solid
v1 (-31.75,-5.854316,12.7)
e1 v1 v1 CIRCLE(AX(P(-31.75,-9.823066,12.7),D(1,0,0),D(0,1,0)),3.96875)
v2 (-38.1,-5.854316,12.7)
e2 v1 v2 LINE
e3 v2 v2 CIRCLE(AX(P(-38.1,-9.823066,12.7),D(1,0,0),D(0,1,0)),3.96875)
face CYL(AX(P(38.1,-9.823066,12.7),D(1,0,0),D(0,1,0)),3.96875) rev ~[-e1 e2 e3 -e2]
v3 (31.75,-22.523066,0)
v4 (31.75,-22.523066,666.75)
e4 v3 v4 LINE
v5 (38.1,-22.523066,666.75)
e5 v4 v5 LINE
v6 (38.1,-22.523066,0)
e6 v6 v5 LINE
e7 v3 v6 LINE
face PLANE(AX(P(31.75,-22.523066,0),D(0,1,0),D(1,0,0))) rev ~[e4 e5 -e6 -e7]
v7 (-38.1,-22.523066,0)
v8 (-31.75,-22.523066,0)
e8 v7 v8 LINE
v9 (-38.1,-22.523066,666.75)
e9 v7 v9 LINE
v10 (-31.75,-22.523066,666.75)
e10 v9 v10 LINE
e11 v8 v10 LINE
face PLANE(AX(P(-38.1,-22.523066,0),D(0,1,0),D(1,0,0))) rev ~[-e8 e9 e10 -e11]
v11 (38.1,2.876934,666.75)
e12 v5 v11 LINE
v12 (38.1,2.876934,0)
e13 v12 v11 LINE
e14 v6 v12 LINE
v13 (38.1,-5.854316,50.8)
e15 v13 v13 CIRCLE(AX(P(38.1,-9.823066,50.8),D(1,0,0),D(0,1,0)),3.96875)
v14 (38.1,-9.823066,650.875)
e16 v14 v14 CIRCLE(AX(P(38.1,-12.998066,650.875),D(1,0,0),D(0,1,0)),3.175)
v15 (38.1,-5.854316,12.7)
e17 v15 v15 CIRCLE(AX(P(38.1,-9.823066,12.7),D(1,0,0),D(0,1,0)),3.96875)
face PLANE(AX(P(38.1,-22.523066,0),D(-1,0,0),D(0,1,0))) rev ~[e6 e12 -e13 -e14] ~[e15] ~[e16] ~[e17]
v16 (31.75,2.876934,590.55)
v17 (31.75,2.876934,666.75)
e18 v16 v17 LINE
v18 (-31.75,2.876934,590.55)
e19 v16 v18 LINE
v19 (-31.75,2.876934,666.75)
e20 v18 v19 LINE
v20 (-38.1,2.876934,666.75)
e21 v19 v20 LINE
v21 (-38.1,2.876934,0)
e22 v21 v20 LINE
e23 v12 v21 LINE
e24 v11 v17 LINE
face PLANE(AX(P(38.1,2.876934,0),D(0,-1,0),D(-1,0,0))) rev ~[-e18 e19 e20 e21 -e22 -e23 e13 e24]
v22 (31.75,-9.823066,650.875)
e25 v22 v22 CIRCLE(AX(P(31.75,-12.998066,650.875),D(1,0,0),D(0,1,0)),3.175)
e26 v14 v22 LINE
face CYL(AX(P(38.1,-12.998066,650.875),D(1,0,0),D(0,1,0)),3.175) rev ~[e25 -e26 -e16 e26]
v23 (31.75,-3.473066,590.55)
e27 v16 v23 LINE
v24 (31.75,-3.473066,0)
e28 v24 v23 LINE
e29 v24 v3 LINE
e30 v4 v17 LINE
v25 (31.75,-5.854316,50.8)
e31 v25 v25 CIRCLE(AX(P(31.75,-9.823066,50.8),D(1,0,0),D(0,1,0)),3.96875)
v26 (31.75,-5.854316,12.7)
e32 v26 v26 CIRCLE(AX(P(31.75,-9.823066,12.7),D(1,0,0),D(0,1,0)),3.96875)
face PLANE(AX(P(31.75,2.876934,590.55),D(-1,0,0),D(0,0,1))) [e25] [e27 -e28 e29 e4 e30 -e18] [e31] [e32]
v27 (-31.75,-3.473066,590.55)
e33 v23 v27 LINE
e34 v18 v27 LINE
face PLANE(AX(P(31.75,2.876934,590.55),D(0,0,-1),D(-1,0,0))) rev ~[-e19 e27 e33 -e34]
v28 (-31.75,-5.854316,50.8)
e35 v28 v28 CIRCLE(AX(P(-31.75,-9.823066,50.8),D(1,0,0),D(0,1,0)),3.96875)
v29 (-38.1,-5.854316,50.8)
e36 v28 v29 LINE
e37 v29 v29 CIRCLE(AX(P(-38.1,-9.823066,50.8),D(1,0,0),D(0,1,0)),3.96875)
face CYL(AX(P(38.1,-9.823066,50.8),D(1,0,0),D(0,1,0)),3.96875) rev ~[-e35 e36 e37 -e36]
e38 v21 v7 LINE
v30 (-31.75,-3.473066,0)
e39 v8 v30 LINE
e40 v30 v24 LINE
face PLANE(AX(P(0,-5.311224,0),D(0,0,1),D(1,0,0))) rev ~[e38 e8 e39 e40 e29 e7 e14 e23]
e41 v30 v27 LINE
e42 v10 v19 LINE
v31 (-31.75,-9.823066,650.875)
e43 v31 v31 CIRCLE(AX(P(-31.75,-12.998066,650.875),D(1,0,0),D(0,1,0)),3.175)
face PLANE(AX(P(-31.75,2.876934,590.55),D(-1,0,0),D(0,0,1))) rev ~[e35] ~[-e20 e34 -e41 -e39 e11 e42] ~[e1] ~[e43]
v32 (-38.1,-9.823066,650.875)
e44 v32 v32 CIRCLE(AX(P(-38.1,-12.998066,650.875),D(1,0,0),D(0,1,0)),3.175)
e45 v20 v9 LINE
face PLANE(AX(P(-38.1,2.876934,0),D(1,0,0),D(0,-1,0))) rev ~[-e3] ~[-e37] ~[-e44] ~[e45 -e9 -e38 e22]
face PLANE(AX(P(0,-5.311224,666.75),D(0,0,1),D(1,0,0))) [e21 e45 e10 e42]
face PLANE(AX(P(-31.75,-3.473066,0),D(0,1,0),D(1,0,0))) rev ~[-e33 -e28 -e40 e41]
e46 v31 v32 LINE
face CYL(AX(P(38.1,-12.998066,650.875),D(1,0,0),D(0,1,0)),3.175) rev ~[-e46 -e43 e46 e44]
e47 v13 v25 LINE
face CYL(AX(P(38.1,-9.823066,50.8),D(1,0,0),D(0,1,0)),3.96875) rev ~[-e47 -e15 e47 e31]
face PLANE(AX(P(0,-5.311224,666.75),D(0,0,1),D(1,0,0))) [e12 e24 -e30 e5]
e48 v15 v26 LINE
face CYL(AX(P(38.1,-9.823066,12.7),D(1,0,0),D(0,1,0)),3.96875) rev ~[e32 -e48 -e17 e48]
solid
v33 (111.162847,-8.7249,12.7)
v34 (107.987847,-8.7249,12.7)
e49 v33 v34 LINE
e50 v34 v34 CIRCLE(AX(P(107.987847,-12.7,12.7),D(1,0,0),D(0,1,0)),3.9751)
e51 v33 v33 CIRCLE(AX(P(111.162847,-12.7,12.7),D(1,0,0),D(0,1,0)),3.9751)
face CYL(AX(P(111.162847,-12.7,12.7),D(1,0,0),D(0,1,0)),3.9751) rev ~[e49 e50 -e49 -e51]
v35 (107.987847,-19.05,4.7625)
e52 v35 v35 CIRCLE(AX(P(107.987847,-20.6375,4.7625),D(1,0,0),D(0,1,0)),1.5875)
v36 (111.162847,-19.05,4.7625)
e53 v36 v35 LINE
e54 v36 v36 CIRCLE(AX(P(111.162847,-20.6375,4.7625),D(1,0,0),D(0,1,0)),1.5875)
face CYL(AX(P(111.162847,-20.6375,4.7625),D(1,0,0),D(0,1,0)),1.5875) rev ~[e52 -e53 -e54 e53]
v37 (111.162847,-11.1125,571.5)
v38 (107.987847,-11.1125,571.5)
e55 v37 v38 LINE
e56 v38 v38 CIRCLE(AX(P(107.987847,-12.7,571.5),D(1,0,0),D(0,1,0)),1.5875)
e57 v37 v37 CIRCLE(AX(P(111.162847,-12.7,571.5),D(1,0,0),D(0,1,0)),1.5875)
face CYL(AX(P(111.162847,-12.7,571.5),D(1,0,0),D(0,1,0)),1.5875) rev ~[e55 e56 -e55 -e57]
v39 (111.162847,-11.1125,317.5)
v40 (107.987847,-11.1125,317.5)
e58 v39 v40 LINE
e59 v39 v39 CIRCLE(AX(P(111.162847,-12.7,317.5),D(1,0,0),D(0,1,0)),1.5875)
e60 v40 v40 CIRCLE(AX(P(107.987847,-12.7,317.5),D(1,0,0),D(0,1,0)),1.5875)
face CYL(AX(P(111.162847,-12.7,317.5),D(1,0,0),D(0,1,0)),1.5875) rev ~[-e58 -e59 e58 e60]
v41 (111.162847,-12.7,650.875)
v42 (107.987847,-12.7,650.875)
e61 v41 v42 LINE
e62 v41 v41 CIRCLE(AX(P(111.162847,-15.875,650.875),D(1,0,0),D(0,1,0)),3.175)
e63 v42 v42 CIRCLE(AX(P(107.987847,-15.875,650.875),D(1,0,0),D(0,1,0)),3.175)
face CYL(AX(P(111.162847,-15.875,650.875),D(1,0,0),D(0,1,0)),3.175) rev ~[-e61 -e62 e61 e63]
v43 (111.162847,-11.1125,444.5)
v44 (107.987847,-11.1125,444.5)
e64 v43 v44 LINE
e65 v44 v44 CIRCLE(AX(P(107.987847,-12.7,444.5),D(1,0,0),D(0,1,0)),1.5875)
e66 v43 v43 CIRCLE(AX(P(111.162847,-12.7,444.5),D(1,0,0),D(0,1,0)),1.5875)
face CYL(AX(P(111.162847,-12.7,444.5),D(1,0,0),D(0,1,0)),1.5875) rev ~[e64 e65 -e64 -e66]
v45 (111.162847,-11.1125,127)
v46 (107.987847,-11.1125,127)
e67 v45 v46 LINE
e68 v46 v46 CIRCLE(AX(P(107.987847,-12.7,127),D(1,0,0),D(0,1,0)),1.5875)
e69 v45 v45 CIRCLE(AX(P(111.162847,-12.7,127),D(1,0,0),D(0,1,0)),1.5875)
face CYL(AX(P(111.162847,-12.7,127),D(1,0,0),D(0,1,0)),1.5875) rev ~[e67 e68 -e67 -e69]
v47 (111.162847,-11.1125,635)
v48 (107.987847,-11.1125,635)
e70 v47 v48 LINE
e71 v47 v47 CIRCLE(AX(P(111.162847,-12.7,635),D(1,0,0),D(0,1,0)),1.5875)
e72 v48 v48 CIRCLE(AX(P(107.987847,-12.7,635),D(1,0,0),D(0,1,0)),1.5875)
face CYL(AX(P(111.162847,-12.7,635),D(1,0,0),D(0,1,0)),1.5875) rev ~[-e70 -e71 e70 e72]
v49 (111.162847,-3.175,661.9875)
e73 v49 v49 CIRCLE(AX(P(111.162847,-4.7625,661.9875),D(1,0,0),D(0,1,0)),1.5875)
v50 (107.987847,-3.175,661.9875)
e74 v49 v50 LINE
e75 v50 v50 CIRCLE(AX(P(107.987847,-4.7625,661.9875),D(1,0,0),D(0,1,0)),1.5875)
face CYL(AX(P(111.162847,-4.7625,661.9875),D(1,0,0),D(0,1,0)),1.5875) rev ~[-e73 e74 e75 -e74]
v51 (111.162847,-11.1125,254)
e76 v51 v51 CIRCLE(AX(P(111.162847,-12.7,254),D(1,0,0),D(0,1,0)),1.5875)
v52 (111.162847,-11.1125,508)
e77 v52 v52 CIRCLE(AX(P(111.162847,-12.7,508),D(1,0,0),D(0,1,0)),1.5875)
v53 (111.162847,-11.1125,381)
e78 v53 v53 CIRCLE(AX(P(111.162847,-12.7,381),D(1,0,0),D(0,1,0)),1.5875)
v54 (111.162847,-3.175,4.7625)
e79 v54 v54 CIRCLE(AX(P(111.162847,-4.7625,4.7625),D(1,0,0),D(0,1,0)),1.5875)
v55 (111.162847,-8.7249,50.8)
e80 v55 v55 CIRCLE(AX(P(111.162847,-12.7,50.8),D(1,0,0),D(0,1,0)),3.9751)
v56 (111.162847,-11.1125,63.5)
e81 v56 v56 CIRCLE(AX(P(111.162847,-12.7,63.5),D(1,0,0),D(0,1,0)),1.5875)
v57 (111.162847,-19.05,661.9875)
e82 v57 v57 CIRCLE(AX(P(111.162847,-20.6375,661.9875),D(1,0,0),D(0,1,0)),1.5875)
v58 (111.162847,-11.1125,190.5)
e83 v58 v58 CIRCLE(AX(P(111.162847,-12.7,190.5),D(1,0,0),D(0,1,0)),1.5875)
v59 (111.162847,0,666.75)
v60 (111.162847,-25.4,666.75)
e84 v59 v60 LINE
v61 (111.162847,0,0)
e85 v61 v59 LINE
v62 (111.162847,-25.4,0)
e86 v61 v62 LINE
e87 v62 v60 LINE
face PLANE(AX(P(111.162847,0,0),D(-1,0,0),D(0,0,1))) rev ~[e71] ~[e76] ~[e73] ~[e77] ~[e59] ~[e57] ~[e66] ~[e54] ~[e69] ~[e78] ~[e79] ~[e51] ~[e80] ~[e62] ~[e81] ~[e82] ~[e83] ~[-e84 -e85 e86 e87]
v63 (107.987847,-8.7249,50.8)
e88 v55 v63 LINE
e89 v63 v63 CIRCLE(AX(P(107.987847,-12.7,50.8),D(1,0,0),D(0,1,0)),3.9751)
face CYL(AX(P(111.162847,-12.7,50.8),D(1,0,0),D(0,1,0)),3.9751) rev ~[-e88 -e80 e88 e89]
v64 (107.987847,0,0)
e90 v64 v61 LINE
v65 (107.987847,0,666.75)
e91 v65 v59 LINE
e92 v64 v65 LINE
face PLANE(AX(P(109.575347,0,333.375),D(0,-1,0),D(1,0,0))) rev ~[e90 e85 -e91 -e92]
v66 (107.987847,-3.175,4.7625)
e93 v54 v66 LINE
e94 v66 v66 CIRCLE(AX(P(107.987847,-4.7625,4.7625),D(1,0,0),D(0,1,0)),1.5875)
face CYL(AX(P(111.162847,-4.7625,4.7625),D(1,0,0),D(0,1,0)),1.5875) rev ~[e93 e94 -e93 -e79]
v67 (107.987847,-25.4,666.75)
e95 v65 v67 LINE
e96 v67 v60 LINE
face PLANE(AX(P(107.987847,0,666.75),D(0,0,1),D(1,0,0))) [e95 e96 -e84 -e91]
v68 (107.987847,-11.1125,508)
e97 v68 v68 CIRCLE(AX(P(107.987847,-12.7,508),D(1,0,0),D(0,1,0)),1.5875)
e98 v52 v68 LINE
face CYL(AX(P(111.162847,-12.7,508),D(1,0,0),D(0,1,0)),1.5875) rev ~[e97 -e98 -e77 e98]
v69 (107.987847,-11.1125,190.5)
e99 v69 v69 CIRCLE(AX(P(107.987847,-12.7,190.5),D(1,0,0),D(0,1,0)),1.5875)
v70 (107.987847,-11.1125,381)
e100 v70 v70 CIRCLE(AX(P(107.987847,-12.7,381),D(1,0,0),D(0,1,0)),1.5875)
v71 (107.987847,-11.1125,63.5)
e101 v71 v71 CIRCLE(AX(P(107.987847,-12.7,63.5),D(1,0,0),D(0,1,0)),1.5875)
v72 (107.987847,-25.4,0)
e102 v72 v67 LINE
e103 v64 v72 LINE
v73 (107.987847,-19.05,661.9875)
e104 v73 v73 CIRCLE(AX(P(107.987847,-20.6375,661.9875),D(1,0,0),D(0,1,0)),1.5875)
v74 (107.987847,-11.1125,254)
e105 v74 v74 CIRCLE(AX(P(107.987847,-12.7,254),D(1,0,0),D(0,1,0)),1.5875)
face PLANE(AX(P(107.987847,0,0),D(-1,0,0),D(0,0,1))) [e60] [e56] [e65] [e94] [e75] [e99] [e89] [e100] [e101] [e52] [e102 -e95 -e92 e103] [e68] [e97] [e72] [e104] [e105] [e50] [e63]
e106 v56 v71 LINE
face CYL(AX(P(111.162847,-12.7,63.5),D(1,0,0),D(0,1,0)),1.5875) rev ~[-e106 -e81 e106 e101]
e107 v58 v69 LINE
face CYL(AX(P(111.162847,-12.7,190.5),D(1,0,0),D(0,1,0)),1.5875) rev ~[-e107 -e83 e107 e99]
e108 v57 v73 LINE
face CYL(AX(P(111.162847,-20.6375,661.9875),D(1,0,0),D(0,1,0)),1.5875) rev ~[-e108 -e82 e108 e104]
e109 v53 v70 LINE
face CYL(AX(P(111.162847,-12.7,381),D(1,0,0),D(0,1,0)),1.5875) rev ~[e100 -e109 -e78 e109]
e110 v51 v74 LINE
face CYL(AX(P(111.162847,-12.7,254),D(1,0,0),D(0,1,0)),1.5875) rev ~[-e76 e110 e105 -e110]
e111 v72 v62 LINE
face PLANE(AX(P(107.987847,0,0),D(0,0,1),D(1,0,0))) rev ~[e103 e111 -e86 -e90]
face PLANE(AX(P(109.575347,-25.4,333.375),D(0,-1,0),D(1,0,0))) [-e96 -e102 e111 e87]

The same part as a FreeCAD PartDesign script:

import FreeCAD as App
import Part
import Sketcher
Q = App.Units.Quantity

doc = App.newDocument("Part")
body = doc.addObject("PartDesign::Body", "Body")

# Sketch on XY plane
sketch1 = body.newObject("Sketcher::SketchObject", "Sketch")
sketch1.AttachmentSupport = (doc.getObject("XY_Plane"), [""])
sketch1.MapMode = "FlatFace"
sketch1.addGeometry([
    Part.LineSegment(App.Vector(-38, 3, 0), App.Vector(-38, -23, 0)),  # 0
    Part.LineSegment(App.Vector(-38, -23, 0), App.Vector(-32, -23, 0)),  # 1
    Part.LineSegment(App.Vector(-32, -23, 0), App.Vector(-32, -3, 0)),  # 2
    Part.LineSegment(App.Vector(-32, -3, 0), App.Vector(32, -3, 0)),  # 3
    Part.LineSegment(App.Vector(32, -3, 0), App.Vector(32, -23, 0)),  # 4
    Part.LineSegment(App.Vector(32, -23, 0), App.Vector(38, -23, 0)),  # 5
    Part.LineSegment(App.Vector(38, -23, 0), App.Vector(38, 3, 0)),  # 6
    Part.LineSegment(App.Vector(38, 3, 0), App.Vector(-38, 3, 0)),  # 7
], False)
sketch1.addConstraint([
    Sketcher.Constraint("Coincident", 0, 2, 1, 1),
    Sketcher.Constraint("Coincident", 1, 2, 2, 1),
    Sketcher.Constraint("Coincident", 2, 2, 3, 1),
    Sketcher.Constraint("Coincident", 3, 2, 4, 1),
    Sketcher.Constraint("Coincident", 4, 2, 5, 1),
    Sketcher.Constraint("Coincident", 5, 2, 6, 1),
    Sketcher.Constraint("Coincident", 6, 2, 7, 1),
    Sketcher.Constraint("Coincident", 7, 2, 0, 1),
    Sketcher.Constraint("Vertical", 0),
    Sketcher.Constraint("Horizontal", 1),
    Sketcher.Constraint("Vertical", 2),
    Sketcher.Constraint("Horizontal", 3),
    Sketcher.Constraint("Vertical", 4),
    Sketcher.Constraint("Horizontal", 5),
    Sketcher.Constraint("Vertical", 6),
    Sketcher.Constraint("Horizontal", 7),
    Sketcher.Constraint("Symmetric", 1, 2, 4, 2, -2),
    Sketcher.Constraint("Equal", 1, 5),
    Sketcher.Constraint("DistanceX", 7, 2, 7, 1, Q("3 in")),
    Sketcher.Constraint("DistanceY", 0, 2, 0, 1, Q("1 in")),
    Sketcher.Constraint("DistanceX", 3, 1, 3, 2, Q("2.5 in")),
    Sketcher.Constraint("DistanceY", 2, 1, 2, 2, Q("0.75 in")),
    Sketcher.Constraint("DistanceY", 0, 2, -1, 1, Q("22.523066 mm")),
])
pad1 = body.newObject("PartDesign::Pad", "Pad")
pad1.Profile = sketch1
pad1.Length = Q("26.25 in")

# Sketch on YZ plane
sketch2 = body.newObject("Sketcher::SketchObject", "Sketch001")
sketch2.AttachmentSupport = (doc.getObject("YZ_Plane"), [""])
sketch2.MapMode = "FlatFace"
sketch2.AttachmentOffset = App.Placement(App.Vector(0, 0, 1.5 * 25.4), App.Rotation())
sketch2.addGeometry([
    Part.Circle(App.Vector(-9.8, 12.7, 0), App.Vector(0, 0, 1), 4),
    Part.Circle(App.Vector(-9.8, 50.8, 0), App.Vector(0, 0, 1), 4),
], False)
sketch2.addConstraint([
    Sketcher.Constraint("Equal", 0, 1),
    Sketcher.Constraint("Vertical", 0, 3, 1, 3),
    Sketcher.Constraint("Diameter", 0, Q("0.3125 in")),
    Sketcher.Constraint("DistanceY", -1, 1, 1, 3, Q("2 in")),
    Sketcher.Constraint("DistanceY", -1, 1, 0, 3, Q("0.5 in")),
    Sketcher.Constraint("DistanceX", 0, 3, -1, 1, Q("9.823066 mm")),
])
pocket1 = body.newObject("PartDesign::Pocket", "Pocket")
pocket1.Profile = sketch2
pocket1.Type = "ThroughAll"

# Sketch on YZ plane
sketch3 = body.newObject("Sketcher::SketchObject", "Sketch002")
sketch3.AttachmentSupport = (doc.getObject("YZ_Plane"), [""])
sketch3.MapMode = "FlatFace"
sketch3.AttachmentOffset = App.Placement(App.Vector(0, 0, 1.5 * 25.4), App.Rotation())
sketch3.addGeometry(Part.Circle(App.Vector(-13, 650.9, 0), App.Vector(0, 0, 1), 3.2), False)
sketch3.addConstraint([
    Sketcher.Constraint("Diameter", 0, Q("0.25 in")),
    Sketcher.Constraint("DistanceY", -1, 1, 0, 3, Q("25.625 in")),
    Sketcher.Constraint("DistanceX", 0, 3, -1, 1, Q("12.998066 mm")),
])
pocket2 = body.newObject("PartDesign::Pocket", "Pocket001")
pocket2.Profile = sketch3
pocket2.Type = "ThroughAll"

# Sketch on XZ plane
sketch4 = body.newObject("Sketcher::SketchObject", "Sketch003")
sketch4.AttachmentSupport = (doc.getObject("XZ_Plane"), [""])
sketch4.MapMode = "FlatFace"
sketch4.AttachmentOffset = App.Placement(App.Vector(0, 0, -2.876934), App.Rotation())
sketch4.addGeometry([
    Part.LineSegment(App.Vector(32, 667, 0), App.Vector(32, 591, 0)),
    Part.LineSegment(App.Vector(32, 591, 0), App.Vector(-32, 591, 0)),
    Part.LineSegment(App.Vector(-32, 591, 0), App.Vector(-32, 667, 0)),
    Part.LineSegment(App.Vector(-32, 667, 0), App.Vector(32, 667, 0)),
], False)
sketch4.addConstraint([
    Sketcher.Constraint("Coincident", 0, 2, 1, 1),
    Sketcher.Constraint("Coincident", 1, 2, 2, 1),
    Sketcher.Constraint("Coincident", 2, 2, 3, 1),
    Sketcher.Constraint("Coincident", 3, 2, 0, 1),
    Sketcher.Constraint("Vertical", 0),
    Sketcher.Constraint("Horizontal", 1),
    Sketcher.Constraint("Vertical", 2),
    Sketcher.Constraint("Horizontal", 3),
    Sketcher.Constraint("DistanceY", 0, 2, 0, 1, Q("3 in")),
    Sketcher.Constraint("DistanceX", 1, 2, 1, 1, Q("2.5 in")),
    Sketcher.Constraint("DistanceX", -1, 1, 0, 2, Q("1.25 in")),
    Sketcher.Constraint("DistanceY", -1, 1, 0, 2, Q("23.25 in")),
])
pocket3 = body.newObject("PartDesign::Pocket", "Pocket002")
pocket3.Profile = sketch4
pocket3.Type = "ThroughAll"
pocket3.Reversed = True
body2 = doc.addObject("PartDesign::Body", "Body001")

# Sketch on XZ plane
sketch5 = body2.newObject("Sketcher::SketchObject", "Sketch004")
sketch5.AttachmentSupport = (doc.getObject("XZ_Plane001"), [""])
sketch5.MapMode = "FlatFace"
sketch5.addGeometry([
    Part.LineSegment(App.Vector(108, 666.8, 0), App.Vector(108, 0, 0)),
    Part.LineSegment(App.Vector(108, 0, 0), App.Vector(111.2, 0, 0)),
    Part.LineSegment(App.Vector(111.2, 0, 0), App.Vector(111.2, 666.8, 0)),
    Part.LineSegment(App.Vector(111.2, 666.8, 0), App.Vector(108, 666.8, 0)),
], False)
sketch5.addConstraint([
    Sketcher.Constraint("Coincident", 0, 2, 1, 1),
    Sketcher.Constraint("Coincident", 1, 2, 2, 1),
    Sketcher.Constraint("Coincident", 2, 2, 3, 1),
    Sketcher.Constraint("Coincident", 3, 2, 0, 1),
    Sketcher.Constraint("Vertical", 0),
    Sketcher.Constraint("Horizontal", 1),
    Sketcher.Constraint("Vertical", 2),
    Sketcher.Constraint("Horizontal", 3),
    Sketcher.Constraint("PointOnObject", 0, 2, -1),
    Sketcher.Constraint("DistanceY", 0, 2, 0, 1, Q("26.25 in")),
    Sketcher.Constraint("DistanceX", 1, 1, 1, 2, Q("0.125 in")),
    Sketcher.Constraint("DistanceX", -1, 1, 0, 2, Q("107.987847 mm")),
])
pad2 = body2.newObject("PartDesign::Pad", "Pad001")
pad2.Profile = sketch5
pad2.Length = Q("1 in")

# Sketch on YZ plane
sketch6 = body2.newObject("Sketcher::SketchObject", "Sketch005")
sketch6.AttachmentSupport = (doc.getObject("YZ_Plane001"), [""])
sketch6.MapMode = "FlatFace"
sketch6.AttachmentOffset = App.Placement(App.Vector(0, 0, 111.162847), App.Rotation())
sketch6.addGeometry([
    Part.Circle(App.Vector(-12.7, 12.7, 0), App.Vector(0, 0, 1), 4),
    Part.Circle(App.Vector(-12.7, 50.8, 0), App.Vector(0, 0, 1), 4),
], False)
sketch6.addConstraint([
    Sketcher.Constraint("Equal", 0, 1),
    Sketcher.Constraint("Vertical", 0, 3, 1, 3),
    Sketcher.Constraint("Diameter", 0, Q("0.313 in")),
    Sketcher.Constraint("DistanceY", -1, 1, 1, 3, Q("2 in")),
    Sketcher.Constraint("DistanceX", 0, 3, -1, 1, Q("0.5 in")),
    Sketcher.Constraint("DistanceY", -1, 1, 0, 3, Q("0.5 in")),
])
pocket4 = body2.newObject("PartDesign::Pocket", "Pocket003")
pocket4.Profile = sketch6
pocket4.Length = Q("1 in")

# Sketch on YZ plane
sketch7 = body2.newObject("Sketcher::SketchObject", "Sketch006")
sketch7.AttachmentSupport = (doc.getObject("YZ_Plane001"), [""])
sketch7.MapMode = "FlatFace"
sketch7.AttachmentOffset = App.Placement(App.Vector(0, 0, 111.162847), App.Rotation())
sketch7.addGeometry(Part.Circle(App.Vector(-15.9, 650.9, 0), App.Vector(0, 0, 1), 3.2), False)
sketch7.addConstraint([
    Sketcher.Constraint("Diameter", 0, Q("0.25 in")),
    Sketcher.Constraint("DistanceX", 0, 3, -1, 1, Q("0.625 in")),
    Sketcher.Constraint("DistanceY", -1, 1, 0, 3, Q("25.625 in")),
])
pocket5 = body2.newObject("PartDesign::Pocket", "Pocket004")
pocket5.Profile = sketch7
pocket5.Length = Q("1 in")

# Sketch on YZ plane
sketch8 = body2.newObject("Sketcher::SketchObject", "Sketch007")
sketch8.AttachmentSupport = (doc.getObject("YZ_Plane001"), [""])
sketch8.MapMode = "FlatFace"
sketch8.AttachmentOffset = App.Placement(App.Vector(0, 0, 111.162847), App.Rotation())
sketch8.addGeometry([
    Part.Circle(App.Vector(-20.6, 4.8, 0), App.Vector(0, 0, 1), 1.6),
    Part.Circle(App.Vector(-4.8, 4.8, 0), App.Vector(0, 0, 1), 1.6),
    Part.Circle(App.Vector(-4.8, 662, 0), App.Vector(0, 0, 1), 1.6),
    Part.Circle(App.Vector(-20.6, 662, 0), App.Vector(0, 0, 1), 1.6),
], False)
sketch8.addConstraint([
    Sketcher.Constraint("Equal", 0, 1),
    Sketcher.Constraint("Equal", 1, 2),
    Sketcher.Constraint("Equal", 2, 3),
    Sketcher.Constraint("Horizontal", 0, 3, 1, 3),
    Sketcher.Constraint("Horizontal", 2, 3, 3, 3),
    Sketcher.Constraint("Vertical", 1, 3, 2, 3),
    Sketcher.Constraint("Vertical", 0, 3, 3, 3),
    Sketcher.Constraint("Diameter", 0, Q("0.125 in")),
    Sketcher.Constraint("DistanceX", 0, 3, -1, 1, Q("0.8125 in")),
    Sketcher.Constraint("DistanceY", -1, 1, 0, 3, Q("0.1875 in")),
    Sketcher.Constraint("DistanceX", 1, 3, -1, 1, Q("0.1875 in")),
    Sketcher.Constraint("DistanceY", -1, 1, 2, 3, Q("26.0625 in")),
])
pocket6 = body2.newObject("PartDesign::Pocket", "Pocket005")
pocket6.Profile = sketch8
pocket6.Length = Q("1 in")

# Sketch on YZ plane
sketch9 = body2.newObject("Sketcher::SketchObject", "Sketch008")
sketch9.AttachmentSupport = (doc.getObject("YZ_Plane001"), [""])
sketch9.MapMode = "FlatFace"
sketch9.AttachmentOffset = App.Placement(App.Vector(0, 0, 111.162847), App.Rotation())
sketch9.addGeometry([
    Part.Circle(App.Vector(-12.7, 63.5, 0), App.Vector(0, 0, 1), 1.6),  # 0
    Part.Circle(App.Vector(-12.7, 127, 0), App.Vector(0, 0, 1), 1.6),  # 1
    Part.Circle(App.Vector(-12.7, 190.5, 0), App.Vector(0, 0, 1), 1.6),  # 2
    Part.Circle(App.Vector(-12.7, 254, 0), App.Vector(0, 0, 1), 1.6),  # 3
    Part.Circle(App.Vector(-12.7, 317.5, 0), App.Vector(0, 0, 1), 1.6),  # 4
    Part.Circle(App.Vector(-12.7, 381, 0), App.Vector(0, 0, 1), 1.6),  # 5
    Part.Circle(App.Vector(-12.7, 444.5, 0), App.Vector(0, 0, 1), 1.6),  # 6
    Part.Circle(App.Vector(-12.7, 508, 0), App.Vector(0, 0, 1), 1.6),  # 7
    Part.Circle(App.Vector(-12.7, 571.5, 0), App.Vector(0, 0, 1), 1.6),  # 8
    Part.Circle(App.Vector(-12.7, 635, 0), App.Vector(0, 0, 1), 1.6),  # 9
], False)
sketch9.addConstraint([
    Sketcher.Constraint("Equal", 0, 1),
    Sketcher.Constraint("Equal", 1, 2),
    Sketcher.Constraint("Equal", 2, 3),
    Sketcher.Constraint("Equal", 3, 4),
    Sketcher.Constraint("Equal", 4, 5),
    Sketcher.Constraint("Equal", 5, 6),
    Sketcher.Constraint("Equal", 6, 7),
    Sketcher.Constraint("Equal", 7, 8),
    Sketcher.Constraint("Equal", 8, 9),
    Sketcher.Constraint("Vertical", 0, 3, 1, 3),
    Sketcher.Constraint("Vertical", 1, 3, 2, 3),
    Sketcher.Constraint("Vertical", 2, 3, 3, 3),
    Sketcher.Constraint("Vertical", 3, 3, 4, 3),
    Sketcher.Constraint("Vertical", 4, 3, 5, 3),
    Sketcher.Constraint("Vertical", 5, 3, 6, 3),
    Sketcher.Constraint("Vertical", 6, 3, 7, 3),
    Sketcher.Constraint("Vertical", 7, 3, 8, 3),
    Sketcher.Constraint("Vertical", 8, 3, 9, 3),
    Sketcher.Constraint("Diameter", 0, Q("0.125 in")),
    Sketcher.Constraint("DistanceY", -1, 1, 1, 3, Q("5 in")),
    Sketcher.Constraint("DistanceY", -1, 1, 3, 3, Q("10 in")),
    Sketcher.Constraint("DistanceY", -1, 1, 5, 3, Q("15 in")),
    Sketcher.Constraint("DistanceY", -1, 1, 7, 3, Q("20 in")),
    Sketcher.Constraint("DistanceY", -1, 1, 9, 3, Q("25 in")),
    Sketcher.Constraint("DistanceY", 0, 3, 2, 3, Q("5 in")),
    Sketcher.Constraint("DistanceY", 2, 3, 4, 3, Q("5 in")),
    Sketcher.Constraint("DistanceY", 4, 3, 6, 3, Q("5 in")),
    Sketcher.Constraint("DistanceY", 6, 3, 8, 3, Q("5 in")),
    Sketcher.Constraint("DistanceX", 0, 3, -1, 1, Q("0.5 in")),
    Sketcher.Constraint("DistanceY", -1, 1, 0, 3, Q("2.5 in")),
])
pocket7 = body2.newObject("PartDesign::Pocket", "Pocket006")
pocket7.Profile = sketch9
pocket7.Length = Q("1 in")

doc.recompute()
